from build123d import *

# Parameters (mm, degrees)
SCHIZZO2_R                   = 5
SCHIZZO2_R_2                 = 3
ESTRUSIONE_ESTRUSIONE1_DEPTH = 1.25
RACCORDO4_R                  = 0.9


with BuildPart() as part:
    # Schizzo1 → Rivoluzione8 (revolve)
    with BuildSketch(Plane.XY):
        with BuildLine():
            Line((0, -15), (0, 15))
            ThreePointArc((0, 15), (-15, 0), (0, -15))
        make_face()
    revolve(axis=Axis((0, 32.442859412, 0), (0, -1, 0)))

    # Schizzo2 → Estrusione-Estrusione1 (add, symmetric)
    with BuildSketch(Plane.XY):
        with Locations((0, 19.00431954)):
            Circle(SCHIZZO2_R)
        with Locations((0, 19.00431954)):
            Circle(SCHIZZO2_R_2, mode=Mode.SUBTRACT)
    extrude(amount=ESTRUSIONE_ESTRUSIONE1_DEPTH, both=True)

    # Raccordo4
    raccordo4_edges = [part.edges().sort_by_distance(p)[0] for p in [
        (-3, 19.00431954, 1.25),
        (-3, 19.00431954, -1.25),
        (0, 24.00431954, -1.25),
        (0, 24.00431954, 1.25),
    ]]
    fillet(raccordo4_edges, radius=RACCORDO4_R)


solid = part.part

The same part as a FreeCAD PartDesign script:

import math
import FreeCAD as App
import Part
import Sketcher

V = App.Vector


def edges_at(feature, points):
    """Names of the edges that pass closest to the given points."""
    edges = feature.Shape.Edges
    near = lambda p: min(range(len(edges)), key=lambda i: edges[i].distToShape(Part.Vertex(*p))[0])
    return sorted({f"Edge{near(p) + 1}" for p in points})

doc = App.newDocument("Part")
params = doc.addObject("Spreadsheet::Sheet", "Params")
for row, (alias, value) in enumerate([
    ("sketch1_radius", "15 mm"),
    ("revolution_angle", "360 deg"),
    ("sketch2_diameter", "10 mm"),
    ("sketch2_diameter2", "6 mm"),
    ("pad1_length", "2.5 mm"),
    ("fillet_radius", "0.9 mm"),
], start=1):
    params.set(f"A{row}", alias)
    params.set(f"B{row}", "=" + value)
    params.setAlias(f"B{row}", alias)

body = doc.addObject("PartDesign::Body", "Body")

# Sketch on XY plane
sketch1 = doc.addObject("Sketcher::SketchObject", "Sketch")
body.addObject(sketch1)
sketch1.AttachmentSupport = (doc.XY_Plane, [""])
sketch1.MapMode = "FlatFace"
sketch1.addGeometry([
    Part.LineSegment(V(0, -15, 0), V(0, 15, 0)),
    Part.ArcOfCircle(Part.Circle(V(0, 0, 0), V(0, 0, 1), 15), math.radians(90), math.radians(270)),
], False)
sketch1.addConstraint([
    Sketcher.Constraint("Coincident", 0, 1, 1, 2),
    Sketcher.Constraint("Coincident", 1, 1, 0, 2),
    Sketcher.Constraint("Vertical", 0),
    Sketcher.Constraint("Coincident", 1, 3, -1, 1),
    Sketcher.Constraint("PointOnObject", 0, 1, -2),
    Sketcher.Constraint("Radius", 1, 15.0),
])
sketch1.setExpression("Constraints[5]", "Params.sketch1_radius")
revolution = doc.addObject("PartDesign::Revolution", "Revolution")
body.addObject(revolution)
revolution.Profile = sketch1
revolution.ReferenceAxis = (sketch1, ["V_Axis"])
revolution.setExpression("Angle", "Params.revolution_angle")

# Sketch on XY plane
sketch2 = doc.addObject("Sketcher::SketchObject", "Sketch001")
body.addObject(sketch2)
sketch2.AttachmentSupport = (doc.XY_Plane, [""])
sketch2.MapMode = "FlatFace"
sketch2.addGeometry([
    Part.Circle(V(0, 19, 0), V(0, 0, 1), 5),
    Part.Circle(V(0, 19, 0), V(0, 0, 1), 3),
], False)
sketch2.addConstraint([
    Sketcher.Constraint("Coincident", 1, 3, 0, 3),
    Sketcher.Constraint("PointOnObject", 0, 3, -2),
    Sketcher.Constraint("Diameter", 0, 10.0),
    Sketcher.Constraint("Diameter", 1, 6.0),
    Sketcher.Constraint("DistanceY", -1, 1, 0, 3, 19.00432),
])
sketch2.setExpression("Constraints[2]", "Params.sketch2_diameter")
sketch2.setExpression("Constraints[3]", "Params.sketch2_diameter2")
pad1 = doc.addObject("PartDesign::Pad", "Pad")
body.addObject(pad1)
pad1.Profile = sketch2
pad1.setExpression("Length", "Params.pad1_length")
pad1.Midplane = True
doc.recompute()

fillet = doc.addObject("PartDesign::Fillet", "Fillet")
body.addObject(fillet)
fillet.Base = (pad1, edges_at(pad1, [
    (-3, 19.004, 1.25),
    (-3, 19.004, -1.25),
    (0, 24.004, -1.25),
    (0, 24.004, 1.25),
]))
fillet.setExpression("Radius", "Params.fillet_radius")

doc.recompute()
